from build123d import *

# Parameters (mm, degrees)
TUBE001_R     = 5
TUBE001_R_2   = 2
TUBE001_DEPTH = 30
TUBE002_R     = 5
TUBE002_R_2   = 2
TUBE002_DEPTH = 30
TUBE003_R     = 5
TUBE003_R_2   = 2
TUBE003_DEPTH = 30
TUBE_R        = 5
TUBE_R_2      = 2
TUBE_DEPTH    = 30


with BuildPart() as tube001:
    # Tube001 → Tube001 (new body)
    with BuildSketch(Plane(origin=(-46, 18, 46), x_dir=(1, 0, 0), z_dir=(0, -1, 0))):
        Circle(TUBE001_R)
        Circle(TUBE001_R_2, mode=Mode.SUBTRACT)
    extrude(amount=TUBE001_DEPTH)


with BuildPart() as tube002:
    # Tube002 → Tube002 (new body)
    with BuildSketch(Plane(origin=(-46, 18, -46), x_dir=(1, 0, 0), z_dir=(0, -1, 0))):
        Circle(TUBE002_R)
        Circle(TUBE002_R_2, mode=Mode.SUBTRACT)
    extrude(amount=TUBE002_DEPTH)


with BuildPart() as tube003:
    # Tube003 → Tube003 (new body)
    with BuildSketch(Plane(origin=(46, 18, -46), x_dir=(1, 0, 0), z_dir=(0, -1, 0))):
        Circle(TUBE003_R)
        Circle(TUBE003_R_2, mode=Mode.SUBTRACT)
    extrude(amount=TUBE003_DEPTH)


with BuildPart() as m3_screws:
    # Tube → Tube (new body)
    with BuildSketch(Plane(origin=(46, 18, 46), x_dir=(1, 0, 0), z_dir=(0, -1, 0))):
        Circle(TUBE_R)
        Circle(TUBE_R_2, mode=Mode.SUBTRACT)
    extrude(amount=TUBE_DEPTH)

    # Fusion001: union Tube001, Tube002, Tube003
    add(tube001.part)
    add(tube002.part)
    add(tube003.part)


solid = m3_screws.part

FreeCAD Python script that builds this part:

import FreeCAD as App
import Part
import Sketcher

doc = App.newDocument("Part")
body = doc.addObject("PartDesign::Body", "Body")

sketch1 = body.newObject("Sketcher::SketchObject", "Sketch")
sketch1.AttachmentSupport = (doc.getObject("XZ_Plane"), [""])
sketch1.MapMode = "FlatFace"
sketch1.AttachmentOffset = App.Placement(App.Vector(0, 0, -18), App.Rotation())
sketch1.addGeometry([
    Part.Circle(App.Vector(-46, 46, 0), App.Vector(0, 0, 1), 5),
    Part.Circle(App.Vector(-46, 46, 0), App.Vector(0, 0, 1), 2),
], False)
sketch1.addConstraint([
    Sketcher.Constraint("Coincident", 1, 3, 0, 3),
    Sketcher.Constraint("Diameter", 0, 10.0),
    Sketcher.Constraint("Diameter", 1, 4.0),
    Sketcher.Constraint("DistanceX", 0, 3, -1, 1, 46.0),
    Sketcher.Constraint("DistanceY", -1, 1, 0, 3, 46.0),
])
pad1 = body.newObject("PartDesign::Pad", "Pad")
pad1.Profile = sketch1
pad1.Length = 30
body2 = doc.addObject("PartDesign::Body", "Body001")

sketch2 = body2.newObject("Sketcher::SketchObject", "Sketch001")
sketch2.AttachmentSupport = (doc.getObject("XZ_Plane001"), [""])
sketch2.MapMode = "FlatFace"
sketch2.AttachmentOffset = App.Placement(App.Vector(0, 0, -18), App.Rotation())
sketch2.addGeometry([
    Part.Circle(App.Vector(-46, -46, 0), App.Vector(0, 0, 1), 5),
    Part.Circle(App.Vector(-46, -46, 0), App.Vector(0, 0, 1), 2),
], False)
sketch2.addConstraint([
    Sketcher.Constraint("Coincident", 1, 3, 0, 3),
    Sketcher.Constraint("Diameter", 0, 10.0),
    Sketcher.Constraint("Diameter", 1, 4.0),
    Sketcher.Constraint("DistanceX", 0, 3, -1, 1, 46.0),
    Sketcher.Constraint("DistanceY", 0, 3, -1, 1, 46.0),
])
pad2 = body2.newObject("PartDesign::Pad", "Pad001")
pad2.Profile = sketch2
pad2.Length = 30
body3 = doc.addObject("PartDesign::Body", "Body002")

sketch3 = body3.newObject("Sketcher::SketchObject", "Sketch002")
sketch3.AttachmentSupport = (doc.getObject("XZ_Plane002"), [""])
sketch3.MapMode = "FlatFace"
sketch3.AttachmentOffset = App.Placement(App.Vector(0, 0, -18), App.Rotation())
sketch3.addGeometry([
    Part.Circle(App.Vector(46, -46, 0), App.Vector(0, 0, 1), 5),
    Part.Circle(App.Vector(46, -46, 0), App.Vector(0, 0, 1), 2),
], False)
sketch3.addConstraint([
    Sketcher.Constraint("Coincident", 1, 3, 0, 3),
    Sketcher.Constraint("Diameter", 0, 10.0),
    Sketcher.Constraint("Diameter", 1, 4.0),
    Sketcher.Constraint("DistanceX", -1, 1, 0, 3, 46.0),
    Sketcher.Constraint("DistanceY", 0, 3, -1, 1, 46.0),
])
pad3 = body3.newObject("PartDesign::Pad", "Pad002")
pad3.Profile = sketch3
pad3.Length = 30
body4 = doc.addObject("PartDesign::Body", "Body003")
body4.AllowCompound = True

sketch4 = body4.newObject("Sketcher::SketchObject", "Sketch003")
sketch4.AttachmentSupport = (doc.getObject("XZ_Plane003"), [""])
sketch4.MapMode = "FlatFace"
sketch4.AttachmentOffset = App.Placement(App.Vector(0, 0, -18), App.Rotation())
sketch4.addGeometry([
    Part.Circle(App.Vector(46, 46, 0), App.Vector(0, 0, 1), 5),
    Part.Circle(App.Vector(46, 46, 0), App.Vector(0, 0, 1), 2),
], False)
sketch4.addConstraint([
    Sketcher.Constraint("Coincident", 1, 3, 0, 3),
    Sketcher.Constraint("Diameter", 0, 10.0),
    Sketcher.Constraint("Diameter", 1, 4.0),
    Sketcher.Constraint("DistanceX", -1, 1, 0, 3, 46.0),
    Sketcher.Constraint("DistanceY", -1, 1, 0, 3, 46.0),
])
pad4 = body4.newObject("PartDesign::Pad", "Pad003")
pad4.Profile = sketch4
pad4.Length = 30
doc.recompute()

boolean = body4.newObject("PartDesign::Boolean", "Boolean")
boolean.Type = "Fuse"
boolean.addObjects([body])
doc.recompute()

boolean2 = body4.newObject("PartDesign::Boolean", "Boolean001")
boolean2.Type = "Fuse"
boolean2.addObjects([body2])
doc.recompute()

boolean3 = body4.newObject("PartDesign::Boolean", "Boolean002")
boolean3.Type = "Fuse"
boolean3.addObjects([body3])

doc.recompute()
